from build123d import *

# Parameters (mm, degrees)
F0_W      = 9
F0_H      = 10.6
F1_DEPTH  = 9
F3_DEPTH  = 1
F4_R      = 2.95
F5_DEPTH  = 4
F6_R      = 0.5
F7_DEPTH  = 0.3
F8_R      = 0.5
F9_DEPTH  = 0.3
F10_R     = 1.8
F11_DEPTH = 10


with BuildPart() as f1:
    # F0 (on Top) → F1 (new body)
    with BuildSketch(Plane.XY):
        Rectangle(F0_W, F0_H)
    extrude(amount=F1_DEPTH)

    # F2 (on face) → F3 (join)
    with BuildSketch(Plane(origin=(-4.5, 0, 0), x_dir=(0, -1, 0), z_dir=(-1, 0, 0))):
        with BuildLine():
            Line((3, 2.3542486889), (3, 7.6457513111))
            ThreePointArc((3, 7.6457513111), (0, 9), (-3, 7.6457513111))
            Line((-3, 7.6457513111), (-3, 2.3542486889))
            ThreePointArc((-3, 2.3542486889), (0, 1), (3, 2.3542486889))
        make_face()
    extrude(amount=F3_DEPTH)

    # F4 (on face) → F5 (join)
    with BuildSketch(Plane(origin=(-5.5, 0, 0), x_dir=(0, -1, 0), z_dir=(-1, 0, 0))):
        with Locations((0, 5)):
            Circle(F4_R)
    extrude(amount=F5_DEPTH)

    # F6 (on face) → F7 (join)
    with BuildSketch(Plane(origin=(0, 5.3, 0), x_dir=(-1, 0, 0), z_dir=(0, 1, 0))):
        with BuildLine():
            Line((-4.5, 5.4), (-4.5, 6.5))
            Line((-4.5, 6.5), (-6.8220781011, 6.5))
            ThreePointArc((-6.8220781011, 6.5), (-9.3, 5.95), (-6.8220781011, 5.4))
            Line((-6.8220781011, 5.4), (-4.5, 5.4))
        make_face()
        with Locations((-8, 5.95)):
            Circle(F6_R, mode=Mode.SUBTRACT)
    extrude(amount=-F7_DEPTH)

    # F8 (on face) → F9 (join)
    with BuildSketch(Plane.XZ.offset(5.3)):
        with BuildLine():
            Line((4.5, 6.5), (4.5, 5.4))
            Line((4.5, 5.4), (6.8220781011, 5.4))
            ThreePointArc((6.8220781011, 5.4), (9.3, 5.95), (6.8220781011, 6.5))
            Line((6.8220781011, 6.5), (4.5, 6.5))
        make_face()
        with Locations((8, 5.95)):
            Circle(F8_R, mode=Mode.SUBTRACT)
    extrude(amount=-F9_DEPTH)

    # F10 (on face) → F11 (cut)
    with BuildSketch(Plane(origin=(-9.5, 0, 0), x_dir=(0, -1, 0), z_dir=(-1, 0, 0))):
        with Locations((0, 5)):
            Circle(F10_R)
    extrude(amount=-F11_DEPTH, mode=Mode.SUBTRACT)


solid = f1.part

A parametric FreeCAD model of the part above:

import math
import FreeCAD as App
import Part
import Sketcher
from FreeCAD import Vector

doc = App.newDocument("Part")
body = doc.addObject("PartDesign::Body", "Body")

# Sketch on XY plane
sketch1 = doc.addObject("Sketcher::SketchObject", "Sketch")
body.addObject(sketch1)
sketch1.AttachmentSupport = (doc.XY_Plane, [""])
sketch1.MapMode = "FlatFace"
sketch1.addGeometry([
    Part.LineSegment(Vector(-4.5, 5.3, 0), Vector(-4.5, -5.3, 0)),
    Part.LineSegment(Vector(-4.5, -5.3, 0), Vector(4.5, -5.3, 0)),
    Part.LineSegment(Vector(4.5, -5.3, 0), Vector(4.5, 5.3, 0)),
    Part.LineSegment(Vector(4.5, 5.3, 0), Vector(-4.5, 5.3, 0)),
], False)
sketch1.addConstraint([
    Sketcher.Constraint("Coincident", 0, 2, 1, 1),
    Sketcher.Constraint("Coincident", 1, 2, 2, 1),
    Sketcher.Constraint("Coincident", 2, 2, 3, 1),
    Sketcher.Constraint("Coincident", 3, 2, 0, 1),
    Sketcher.Constraint("Vertical", 0),
    Sketcher.Constraint("Horizontal", 1),
    Sketcher.Constraint("Vertical", 2),
    Sketcher.Constraint("Horizontal", 3),
    Sketcher.Constraint("Symmetric", 0, 2, 2, 2, -1, 1),
    Sketcher.Constraint("DistanceX", 1, 1, 1, 2, 9.0),
    Sketcher.Constraint("DistanceY", 0, 2, 0, 1, 10.6),
])
pad1 = doc.addObject("PartDesign::Pad", "Pad")
body.addObject(pad1)
pad1.Profile = sketch1
pad1.Length = 9

# Sketch on YZ plane
sketch2 = doc.addObject("Sketcher::SketchObject", "Sketch001")
body.addObject(sketch2)
sketch2.AttachmentSupport = (doc.YZ_Plane, [""])
sketch2.MapMode = "FlatFace"
sketch2.AttachmentOffset = App.Placement(Vector(0, 0, -4.5), App.Rotation())
sketch2.addGeometry([
    Part.LineSegment(Vector(-3, 2.354249, 0), Vector(-3, 7.645751, 0)),
    Part.ArcOfCircle(Part.Circle(Vector(0, 5, 0), Vector(0, 0, 1), 4), math.radians(41.409622), math.radians(138.590378)),
    Part.LineSegment(Vector(3, 7.645751, 0), Vector(3, 2.354249, 0)),
    Part.ArcOfCircle(Part.Circle(Vector(0, 5, 0), Vector(0, 0, 1), 4), math.radians(-138.590378), math.radians(-41.409622)),
], False)
sketch2.addConstraint([
    Sketcher.Constraint("Coincident", 0, 2, 1, 2),
    Sketcher.Constraint("Coincident", 1, 1, 2, 1),
    Sketcher.Constraint("Coincident", 2, 2, 3, 2),
    Sketcher.Constraint("Coincident", 3, 1, 0, 1),
    Sketcher.Constraint("Vertical", 0),
    Sketcher.Constraint("Vertical", 2),
    Sketcher.Constraint("Coincident", 3, 3, 1, 3),
    Sketcher.Constraint("Equal", 1, 3),
    Sketcher.Constraint("Symmetric", 0, 2, 1, 1, -2),
    Sketcher.Constraint("Radius", 1, 4.0),
    Sketcher.Constraint("DistanceY", -1, 1, 1, 3, 5.0),
    Sketcher.Constraint("DistanceX", 0, 2, -1, 1, 3.0),
])
pad2 = doc.addObject("PartDesign::Pad", "Pad001")
body.addObject(pad2)
pad2.Profile = sketch2
pad2.Length = 1
pad2.Reversed = True

# Sketch on YZ plane
sketch3 = doc.addObject("Sketcher::SketchObject", "Sketch002")
body.addObject(sketch3)
sketch3.AttachmentSupport = (doc.YZ_Plane, [""])
sketch3.MapMode = "FlatFace"
sketch3.AttachmentOffset = App.Placement(Vector(0, 0, -5.5), App.Rotation())
sketch3.addGeometry(Part.Circle(Vector(0, 5, 0), Vector(0, 0, 1), 2.95), False)
sketch3.addConstraint([
    Sketcher.Constraint("PointOnObject", 0, 3, -2),
    Sketcher.Constraint("Diameter", 0, 5.9),
    Sketcher.Constraint("DistanceY", -1, 1, 0, 3, 5.0),
])
pad3 = doc.addObject("PartDesign::Pad", "Pad002")
body.addObject(pad3)
pad3.Profile = sketch3
pad3.Length = 4
pad3.Reversed = True

# Sketch on XZ plane
sketch4 = doc.addObject("Sketcher::SketchObject", "Sketch003")
body.addObject(sketch4)
sketch4.AttachmentSupport = (doc.XZ_Plane, [""])
sketch4.MapMode = "FlatFace"
sketch4.AttachmentOffset = App.Placement(Vector(0, 0, -5.3), App.Rotation())
sketch4.addGeometry([
    Part.LineSegment(Vector(4.5, 5.4, 0), Vector(4.5, 6.5, 0)),  # 0
    Part.LineSegment(Vector(4.5, 6.5, 0), Vector(6.822078, 6.5, 0)),  # 1
    Part.ArcOfCircle(Part.Circle(Vector(8, 5.95, 0), Vector(0, 0, 1), 1.3), math.radians(-154.971001), math.radians(154.971001)),  # 2
    Part.LineSegment(Vector(6.822078, 5.4, 0), Vector(4.5, 5.4, 0)),  # 3
    Part.Circle(Vector(8, 5.95, 0), Vector(0, 0, 1), 0.5),  # 4
], False)
sketch4.addConstraint([
    Sketcher.Constraint("Coincident", 0, 2, 1, 1),
    Sketcher.Constraint("Coincident", 1, 2, 2, 2),
    Sketcher.Constraint("Coincident", 2, 1, 3, 1),
    Sketcher.Constraint("Coincident", 3, 2, 0, 1),
    Sketcher.Constraint("Vertical", 0),
    Sketcher.Constraint("Horizontal", 1),
    Sketcher.Constraint("Horizontal", 3),
    Sketcher.Constraint("Coincident", 4, 3, 2, 3),
    Sketcher.Constraint("Vertical", 1, 2, 2, 1),
    Sketcher.Constraint("Diameter", 4, 1.0),
    Sketcher.Constraint("Radius", 2, 1.3),
    Sketcher.Constraint("DistanceY", 0, 1, 0, 2, 1.1),
    Sketcher.Constraint("DistanceX", -1, 1, 2, 3, 8.0),
    Sketcher.Constraint("DistanceX", -1, 1, 0, 2, 4.5),
    Sketcher.Constraint("DistanceY", -1, 1, 0, 2, 6.5),
])
pad4 = doc.addObject("PartDesign::Pad", "Pad003")
body.addObject(pad4)
pad4.Profile = sketch4
pad4.Length = 0.3

# Sketch on XZ plane
sketch5 = doc.addObject("Sketcher::SketchObject", "Sketch004")
body.addObject(sketch5)
sketch5.AttachmentSupport = (doc.XZ_Plane, [""])
sketch5.MapMode = "FlatFace"
sketch5.AttachmentOffset = App.Placement(Vector(0, 0, 5.3), App.Rotation())
sketch5.addGeometry([
    Part.LineSegment(Vector(4.5, 6.5, 0), Vector(4.5, 5.4, 0)),  # 0
    Part.LineSegment(Vector(4.5, 5.4, 0), Vector(6.822078, 5.4, 0)),  # 1
    Part.ArcOfCircle(Part.Circle(Vector(8, 5.95, 0), Vector(0, 0, 1), 1.3), math.radians(-154.971001), math.radians(154.971001)),  # 2
    Part.LineSegment(Vector(6.822078, 6.5, 0), Vector(4.5, 6.5, 0)),  # 3
    Part.Circle(Vector(8, 5.95, 0), Vector(0, 0, 1), 0.5),  # 4
], False)
sketch5.addConstraint([
    Sketcher.Constraint("Coincident", 0, 2, 1, 1),
    Sketcher.Constraint("Coincident", 1, 2, 2, 1),
    Sketcher.Constraint("Coincident", 2, 2, 3, 1),
    Sketcher.Constraint("Coincident", 3, 2, 0, 1),
    Sketcher.Constraint("Vertical", 0),
    Sketcher.Constraint("Horizontal", 1),
    Sketcher.Constraint("Horizontal", 3),
    Sketcher.Constraint("Coincident", 4, 3, 2, 3),
    Sketcher.Constraint("Vertical", 1, 2, 2, 2),
    Sketcher.Constraint("Diameter", 4, 1.0),
    Sketcher.Constraint("Radius", 2, 1.3),
    Sketcher.Constraint("DistanceY", 0, 2, 0, 1, 1.1),
    Sketcher.Constraint("DistanceX", -1, 1, 2, 3, 8.0),
    Sketcher.Constraint("DistanceX", -1, 1, 0, 2, 4.5),
    Sketcher.Constraint("DistanceY", -1, 1, 0, 2, 5.4),
])
pad5 = doc.addObject("PartDesign::Pad", "Pad004")
body.addObject(pad5)
pad5.Profile = sketch5
pad5.Length = 0.3
pad5.Reversed = True

# Sketch on YZ plane
sketch6 = doc.addObject("Sketcher::SketchObject", "Sketch005")
body.addObject(sketch6)
sketch6.AttachmentSupport = (doc.YZ_Plane, [""])
sketch6.MapMode = "FlatFace"
sketch6.AttachmentOffset = App.Placement(Vector(0, 0, -9.5), App.Rotation())
sketch6.addGeometry(Part.Circle(Vector(0, 5, 0), Vector(0, 0, 1), 1.8), False)
sketch6.addConstraint([
    Sketcher.Constraint("PointOnObject", 0, 3, -2),
    Sketcher.Constraint("Diameter", 0, 3.6),
    Sketcher.Constraint("DistanceY", -1, 1, 0, 3, 5.0),
])
pocket1 = doc.addObject("PartDesign::Pocket", "Pocket")
body.addObject(pocket1)
pocket1.Profile = sketch6
pocket1.Length = 10
pocket1.Reversed = True

doc.recompute()
